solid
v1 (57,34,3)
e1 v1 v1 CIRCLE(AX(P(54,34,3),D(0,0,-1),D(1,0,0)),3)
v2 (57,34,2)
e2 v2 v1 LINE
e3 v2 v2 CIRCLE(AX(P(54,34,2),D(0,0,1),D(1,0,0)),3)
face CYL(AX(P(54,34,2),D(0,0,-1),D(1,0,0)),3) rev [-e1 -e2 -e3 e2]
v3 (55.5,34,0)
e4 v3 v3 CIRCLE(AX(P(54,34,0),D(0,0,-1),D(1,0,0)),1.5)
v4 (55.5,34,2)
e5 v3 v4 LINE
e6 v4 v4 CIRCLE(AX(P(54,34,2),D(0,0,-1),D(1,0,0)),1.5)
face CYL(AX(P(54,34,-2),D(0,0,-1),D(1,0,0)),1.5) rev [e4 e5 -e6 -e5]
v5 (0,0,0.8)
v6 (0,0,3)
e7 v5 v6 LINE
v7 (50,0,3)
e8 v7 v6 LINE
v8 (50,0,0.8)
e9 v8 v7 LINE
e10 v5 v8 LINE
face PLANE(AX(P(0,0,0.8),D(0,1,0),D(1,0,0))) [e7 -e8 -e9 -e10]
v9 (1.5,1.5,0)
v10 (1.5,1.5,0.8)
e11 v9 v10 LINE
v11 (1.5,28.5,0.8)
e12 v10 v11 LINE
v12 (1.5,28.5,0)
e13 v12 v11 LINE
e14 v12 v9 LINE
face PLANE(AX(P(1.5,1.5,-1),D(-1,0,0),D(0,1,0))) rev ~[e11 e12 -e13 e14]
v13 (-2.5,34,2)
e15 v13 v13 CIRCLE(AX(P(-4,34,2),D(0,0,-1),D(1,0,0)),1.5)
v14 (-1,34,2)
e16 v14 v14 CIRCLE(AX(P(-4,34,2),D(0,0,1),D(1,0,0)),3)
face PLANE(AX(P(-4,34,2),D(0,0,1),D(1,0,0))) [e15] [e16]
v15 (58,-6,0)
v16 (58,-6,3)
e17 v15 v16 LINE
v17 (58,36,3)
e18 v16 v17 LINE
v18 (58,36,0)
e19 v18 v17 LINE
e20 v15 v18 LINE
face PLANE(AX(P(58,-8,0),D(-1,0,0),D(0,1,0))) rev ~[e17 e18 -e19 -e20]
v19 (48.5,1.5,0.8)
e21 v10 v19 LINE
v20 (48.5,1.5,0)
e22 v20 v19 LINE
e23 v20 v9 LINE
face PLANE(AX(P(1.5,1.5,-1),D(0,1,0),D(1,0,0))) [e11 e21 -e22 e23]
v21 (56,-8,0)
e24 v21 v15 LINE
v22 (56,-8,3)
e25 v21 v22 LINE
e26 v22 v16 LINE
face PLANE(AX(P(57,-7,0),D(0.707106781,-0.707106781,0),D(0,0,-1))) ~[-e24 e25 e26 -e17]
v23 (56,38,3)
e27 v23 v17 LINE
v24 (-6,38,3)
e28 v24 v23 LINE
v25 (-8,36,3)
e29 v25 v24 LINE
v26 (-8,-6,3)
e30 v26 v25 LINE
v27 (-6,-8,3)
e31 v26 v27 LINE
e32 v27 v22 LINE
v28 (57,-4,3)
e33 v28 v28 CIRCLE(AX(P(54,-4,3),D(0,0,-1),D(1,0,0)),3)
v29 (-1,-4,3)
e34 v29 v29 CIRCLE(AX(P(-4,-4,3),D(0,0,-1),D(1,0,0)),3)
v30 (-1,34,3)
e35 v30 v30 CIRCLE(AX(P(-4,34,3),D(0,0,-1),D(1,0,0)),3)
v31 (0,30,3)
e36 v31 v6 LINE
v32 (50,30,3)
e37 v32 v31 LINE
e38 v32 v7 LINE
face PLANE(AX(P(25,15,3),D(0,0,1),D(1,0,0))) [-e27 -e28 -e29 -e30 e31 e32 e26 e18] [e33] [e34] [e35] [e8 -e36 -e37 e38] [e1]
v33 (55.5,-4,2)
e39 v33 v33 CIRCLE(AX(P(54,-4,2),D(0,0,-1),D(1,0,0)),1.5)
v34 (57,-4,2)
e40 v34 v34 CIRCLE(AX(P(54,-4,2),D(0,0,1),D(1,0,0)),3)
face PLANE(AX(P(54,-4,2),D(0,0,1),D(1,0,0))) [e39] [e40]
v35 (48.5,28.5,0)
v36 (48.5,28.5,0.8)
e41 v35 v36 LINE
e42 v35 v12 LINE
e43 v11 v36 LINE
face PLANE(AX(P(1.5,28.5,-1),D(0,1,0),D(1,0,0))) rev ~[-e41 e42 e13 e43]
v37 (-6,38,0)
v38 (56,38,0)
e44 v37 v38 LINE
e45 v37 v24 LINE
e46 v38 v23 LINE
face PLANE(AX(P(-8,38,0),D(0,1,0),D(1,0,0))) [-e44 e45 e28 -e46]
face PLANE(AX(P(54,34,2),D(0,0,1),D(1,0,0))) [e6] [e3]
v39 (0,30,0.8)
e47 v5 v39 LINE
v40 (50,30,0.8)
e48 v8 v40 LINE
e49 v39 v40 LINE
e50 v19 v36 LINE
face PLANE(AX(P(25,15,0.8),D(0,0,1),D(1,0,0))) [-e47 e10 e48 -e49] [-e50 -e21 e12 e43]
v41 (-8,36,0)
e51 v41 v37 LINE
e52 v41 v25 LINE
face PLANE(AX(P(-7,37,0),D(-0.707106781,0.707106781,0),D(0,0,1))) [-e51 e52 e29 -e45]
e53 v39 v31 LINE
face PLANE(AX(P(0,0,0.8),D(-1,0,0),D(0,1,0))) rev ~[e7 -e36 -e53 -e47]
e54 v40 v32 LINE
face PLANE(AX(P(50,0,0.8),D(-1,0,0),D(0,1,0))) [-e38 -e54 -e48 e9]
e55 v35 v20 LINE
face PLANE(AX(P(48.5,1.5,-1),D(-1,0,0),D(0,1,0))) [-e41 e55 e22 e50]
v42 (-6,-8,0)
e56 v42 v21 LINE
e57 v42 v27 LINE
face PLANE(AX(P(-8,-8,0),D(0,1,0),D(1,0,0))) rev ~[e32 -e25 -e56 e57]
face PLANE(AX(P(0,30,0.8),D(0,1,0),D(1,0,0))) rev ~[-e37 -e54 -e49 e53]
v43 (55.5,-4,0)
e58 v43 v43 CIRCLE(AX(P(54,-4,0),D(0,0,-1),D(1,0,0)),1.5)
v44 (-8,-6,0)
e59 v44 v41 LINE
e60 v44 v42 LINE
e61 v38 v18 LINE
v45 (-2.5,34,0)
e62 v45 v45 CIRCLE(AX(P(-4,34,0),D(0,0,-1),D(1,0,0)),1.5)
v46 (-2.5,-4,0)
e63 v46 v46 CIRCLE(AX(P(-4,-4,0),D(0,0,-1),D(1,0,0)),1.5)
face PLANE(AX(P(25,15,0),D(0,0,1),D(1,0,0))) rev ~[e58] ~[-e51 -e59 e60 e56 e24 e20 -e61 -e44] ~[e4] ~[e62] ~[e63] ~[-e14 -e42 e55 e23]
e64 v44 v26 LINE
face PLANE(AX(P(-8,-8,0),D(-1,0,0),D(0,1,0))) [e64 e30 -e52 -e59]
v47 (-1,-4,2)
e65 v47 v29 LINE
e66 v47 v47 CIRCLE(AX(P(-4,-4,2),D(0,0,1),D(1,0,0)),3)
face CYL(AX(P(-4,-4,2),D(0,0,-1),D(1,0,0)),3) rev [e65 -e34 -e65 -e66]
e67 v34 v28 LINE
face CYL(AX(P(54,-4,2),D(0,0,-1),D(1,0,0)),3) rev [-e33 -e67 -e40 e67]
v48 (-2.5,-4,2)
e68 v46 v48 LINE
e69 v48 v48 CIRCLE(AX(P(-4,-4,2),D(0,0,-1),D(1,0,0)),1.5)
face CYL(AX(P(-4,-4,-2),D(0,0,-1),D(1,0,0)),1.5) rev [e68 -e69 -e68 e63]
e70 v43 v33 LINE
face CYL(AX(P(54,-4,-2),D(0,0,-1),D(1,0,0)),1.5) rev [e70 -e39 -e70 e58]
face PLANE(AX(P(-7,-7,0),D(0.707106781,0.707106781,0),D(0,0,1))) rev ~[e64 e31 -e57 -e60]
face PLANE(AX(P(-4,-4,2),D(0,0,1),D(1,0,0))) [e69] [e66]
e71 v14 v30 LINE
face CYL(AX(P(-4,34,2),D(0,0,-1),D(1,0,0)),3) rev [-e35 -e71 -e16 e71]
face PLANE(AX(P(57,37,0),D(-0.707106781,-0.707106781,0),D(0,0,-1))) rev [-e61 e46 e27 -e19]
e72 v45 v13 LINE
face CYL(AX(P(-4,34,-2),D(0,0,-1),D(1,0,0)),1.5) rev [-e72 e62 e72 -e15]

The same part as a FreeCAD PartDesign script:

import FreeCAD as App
import Part
import Sketcher
Q = App.Units.Quantity


def edges_at(feature, points):
    """Names of the edges that pass closest to the given points."""
    edges = feature.Shape.Edges
    near = lambda p: min(range(len(edges)), key=lambda i: edges[i].distToShape(Part.Vertex(*p))[0])
    return sorted({f"Edge{near(p) + 1}" for p in points})

doc = App.newDocument("Part")
body = doc.addObject("PartDesign::Body", "Body")

sketch1 = doc.addObject("Sketcher::SketchObject", "Sketch")
body.addObject(sketch1)
sketch1.AttachmentSupport = (doc.XY_Plane, [""])
sketch1.MapMode = "FlatFace"
sketch1.AttachmentOffset = App.Placement(App.Vector(0, 0, -2), App.Rotation())
sketch1.addGeometry(Part.Circle(App.Vector(54, -4, 0), App.Vector(0, 0, 1), 3), False)
sketch1.addConstraint([
    Sketcher.Constraint("Diameter", 0, Q("6 mm")),
    Sketcher.Constraint("DistanceX", -1, 1, 0, 3, Q("54 mm")),
    Sketcher.Constraint("DistanceY", 0, 3, -1, 1, Q("4 mm")),
])
pad1 = doc.addObject("PartDesign::Pad", "Pad")
body.addObject(pad1)
pad1.Profile = sketch1
pad1.Length = 3
body2 = doc.addObject("PartDesign::Body", "Body001")

sketch2 = doc.addObject("Sketcher::SketchObject", "Sketch001")
body2.addObject(sketch2)
sketch2.AttachmentSupport = (doc.getObject("XY_Plane001"), [""])
sketch2.MapMode = "FlatFace"
sketch2.AttachmentOffset = App.Placement(App.Vector(0, 0, -2), App.Rotation())
sketch2.addGeometry(Part.Circle(App.Vector(54, 34, 0), App.Vector(0, 0, 1), 3), False)
sketch2.addConstraint([
    Sketcher.Constraint("Diameter", 0, Q("6 mm")),
    Sketcher.Constraint("DistanceX", -1, 1, 0, 3, Q("54 mm")),
    Sketcher.Constraint("DistanceY", -1, 1, 0, 3, Q("34 mm")),
])
pad2 = doc.addObject("PartDesign::Pad", "Pad001")
body2.addObject(pad2)
pad2.Profile = sketch2
pad2.Length = 3
body3 = doc.addObject("PartDesign::Body", "Body002")

sketch3 = doc.addObject("Sketcher::SketchObject", "Sketch002")
body3.addObject(sketch3)
sketch3.AttachmentSupport = (doc.getObject("XY_Plane002"), [""])
sketch3.MapMode = "FlatFace"
sketch3.AttachmentOffset = App.Placement(App.Vector(0, 0, -2), App.Rotation())
sketch3.addGeometry(Part.Circle(App.Vector(-4, -4, 0), App.Vector(0, 0, 1), 3), False)
sketch3.addConstraint([
    Sketcher.Constraint("Diameter", 0, Q("6 mm")),
    Sketcher.Constraint("DistanceX", 0, 3, -1, 1, Q("4 mm")),
    Sketcher.Constraint("DistanceY", 0, 3, -1, 1, Q("4 mm")),
])
pad3 = doc.addObject("PartDesign::Pad", "Pad002")
body3.addObject(pad3)
pad3.Profile = sketch3
pad3.Length = 3
body4 = doc.addObject("PartDesign::Body", "Body003")
body4.AllowCompound = True

sketch4 = doc.addObject("Sketcher::SketchObject", "Sketch003")
body4.addObject(sketch4)
sketch4.AttachmentSupport = (doc.getObject("XY_Plane003"), [""])
sketch4.MapMode = "FlatFace"
sketch4.AttachmentOffset = App.Placement(App.Vector(0, 0, -2), App.Rotation())
sketch4.addGeometry(Part.Circle(App.Vector(-4, 34, 0), App.Vector(0, 0, 1), 3), False)
sketch4.addConstraint([
    Sketcher.Constraint("Diameter", 0, Q("6 mm")),
    Sketcher.Constraint("DistanceX", 0, 3, -1, 1, Q("4 mm")),
    Sketcher.Constraint("DistanceY", -1, 1, 0, 3, Q("34 mm")),
])
pad4 = doc.addObject("PartDesign::Pad", "Pad003")
body4.addObject(pad4)
pad4.Profile = sketch4
pad4.Length = 3
doc.recompute()

boolean = doc.addObject("PartDesign::Boolean", "Boolean")
body4.addObject(boolean)
boolean.Type = "Fuse"
boolean.addObjects([body])
doc.recompute()

boolean2 = doc.addObject("PartDesign::Boolean", "Boolean001")
body4.addObject(boolean2)
boolean2.Type = "Fuse"
boolean2.addObjects([body2])
doc.recompute()

boolean3 = doc.addObject("PartDesign::Boolean", "Boolean002")
body4.addObject(boolean3)
boolean3.Type = "Fuse"
boolean3.addObjects([body3])
body5 = doc.addObject("PartDesign::Body", "Body004")
body5.AllowCompound = True
doc.recompute()

body4.Placement = App.Placement(App.Vector(0, 0, 4), App.Rotation(App.Vector(0, 0, 1), 0))
boolean4 = doc.addObject("PartDesign::Boolean", "Boolean003")
body5.addObject(boolean4)
boolean4.Type = "Fuse"
boolean4.addObjects([body4])
body6 = doc.addObject("PartDesign::Body", "Body005")

sketch5 = doc.addObject("Sketcher::SketchObject", "Sketch004")
body6.addObject(sketch5)
sketch5.AttachmentSupport = (doc.getObject("XY_Plane005"), [""])
sketch5.MapMode = "FlatFace"
sketch5.AttachmentOffset = App.Placement(App.Vector(0, 0, -2), App.Rotation())
sketch5.addGeometry(Part.Circle(App.Vector(54, -4, 0), App.Vector(0, 0, 1), 1.5), False)
sketch5.addConstraint([
    Sketcher.Constraint("Diameter", 0, Q("3 mm")),
    Sketcher.Constraint("DistanceX", -1, 1, 0, 3, Q("54 mm")),
    Sketcher.Constraint("DistanceY", 0, 3, -1, 1, Q("4 mm")),
])
pad5 = doc.addObject("PartDesign::Pad", "Pad004")
body6.addObject(pad5)
pad5.Profile = sketch5
pad5.Length = 10
body7 = doc.addObject("PartDesign::Body", "Body006")

sketch6 = doc.addObject("Sketcher::SketchObject", "Sketch005")
body7.addObject(sketch6)
sketch6.AttachmentSupport = (doc.getObject("XY_Plane006"), [""])
sketch6.MapMode = "FlatFace"
sketch6.AttachmentOffset = App.Placement(App.Vector(0, 0, -2), App.Rotation())
sketch6.addGeometry(Part.Circle(App.Vector(54, 34, 0), App.Vector(0, 0, 1), 1.5), False)
sketch6.addConstraint([
    Sketcher.Constraint("Diameter", 0, Q("3 mm")),
    Sketcher.Constraint("DistanceX", -1, 1, 0, 3, Q("54 mm")),
    Sketcher.Constraint("DistanceY", -1, 1, 0, 3, Q("34 mm")),
])
pad6 = doc.addObject("PartDesign::Pad", "Pad005")
body7.addObject(pad6)
pad6.Profile = sketch6
pad6.Length = 10
body8 = doc.addObject("PartDesign::Body", "Body007")

sketch7 = doc.addObject("Sketcher::SketchObject", "Sketch006")
body8.addObject(sketch7)
sketch7.AttachmentSupport = (doc.getObject("XY_Plane007"), [""])
sketch7.MapMode = "FlatFace"
sketch7.AttachmentOffset = App.Placement(App.Vector(0, 0, -2), App.Rotation())
sketch7.addGeometry(Part.Circle(App.Vector(-4, -4, 0), App.Vector(0, 0, 1), 1.5), False)
sketch7.addConstraint([
    Sketcher.Constraint("Diameter", 0, Q("3 mm")),
    Sketcher.Constraint("DistanceX", 0, 3, -1, 1, Q("4 mm")),
    Sketcher.Constraint("DistanceY", 0, 3, -1, 1, Q("4 mm")),
])
pad7 = doc.addObject("PartDesign::Pad", "Pad006")
body8.addObject(pad7)
pad7.Profile = sketch7
pad7.Length = 10
body9 = doc.addObject("PartDesign::Body", "Body008")
body9.AllowCompound = True

sketch8 = doc.addObject("Sketcher::SketchObject", "Sketch007")
body9.addObject(sketch8)
sketch8.AttachmentSupport = (doc.getObject("XY_Plane008"), [""])
sketch8.MapMode = "FlatFace"
sketch8.AttachmentOffset = App.Placement(App.Vector(0, 0, -2), App.Rotation())
sketch8.addGeometry(Part.Circle(App.Vector(-4, 34, 0), App.Vector(0, 0, 1), 1.5), False)
sketch8.addConstraint([
    Sketcher.Constraint("Diameter", 0, Q("3 mm")),
    Sketcher.Constraint("DistanceX", 0, 3, -1, 1, Q("4 mm")),
    Sketcher.Constraint("DistanceY", -1, 1, 0, 3, Q("34 mm")),
])
pad8 = doc.addObject("PartDesign::Pad", "Pad007")
body9.addObject(pad8)
pad8.Profile = sketch8
pad8.Length = 10
doc.recompute()

boolean5 = doc.addObject("PartDesign::Boolean", "Boolean004")
body9.addObject(boolean5)
boolean5.Type = "Fuse"
boolean5.addObjects([body6])
doc.recompute()

boolean6 = doc.addObject("PartDesign::Boolean", "Boolean005")
body9.addObject(boolean6)
boolean6.Type = "Fuse"
boolean6.addObjects([body7])
doc.recompute()

boolean7 = doc.addObject("PartDesign::Boolean", "Boolean006")
body9.addObject(boolean7)
boolean7.Type = "Fuse"
boolean7.addObjects([body8])
body10 = doc.addObject("PartDesign::Body", "Body009")

sketch9 = doc.addObject("Sketcher::SketchObject", "Sketch008")
body10.addObject(sketch9)
sketch9.AttachmentSupport = (doc.getObject("XY_Plane009"), [""])
sketch9.MapMode = "FlatFace"
sketch9.AttachmentOffset = App.Placement(App.Vector(0, 0, 0.8), App.Rotation())
sketch9.addGeometry([
    Part.LineSegment(App.Vector(0, 30, 0), App.Vector(0, 0, 0)),
    Part.LineSegment(App.Vector(0, 0, 0), App.Vector(50, 0, 0)),
    Part.LineSegment(App.Vector(50, 0, 0), App.Vector(50, 30, 0)),
    Part.LineSegment(App.Vector(50, 30, 0), App.Vector(0, 30, 0)),
], False)
sketch9.addConstraint([
    Sketcher.Constraint("Coincident", 0, 2, 1, 1),
    Sketcher.Constraint("Coincident", 1, 2, 2, 1),
    Sketcher.Constraint("Coincident", 2, 2, 3, 1),
    Sketcher.Constraint("Coincident", 3, 2, 0, 1),
    Sketcher.Constraint("Vertical", 0),
    Sketcher.Constraint("Horizontal", 1),
    Sketcher.Constraint("Vertical", 2),
    Sketcher.Constraint("Horizontal", 3),
    Sketcher.Constraint("Coincident", 0, 2, -1, 1),
    Sketcher.Constraint("DistanceX", 1, 1, 1, 2, Q("50 mm")),
    Sketcher.Constraint("DistanceY", 0, 2, 0, 1, Q("30 mm")),
])
pad9 = doc.addObject("PartDesign::Pad", "Pad008")
body10.addObject(pad9)
pad9.Profile = sketch9
pad9.Length = 3
body11 = doc.addObject("PartDesign::Body", "Body010")

sketch10 = doc.addObject("Sketcher::SketchObject", "Sketch009")
body11.addObject(sketch10)
sketch10.AttachmentSupport = (doc.getObject("XY_Plane010"), [""])
sketch10.MapMode = "FlatFace"
sketch10.AttachmentOffset = App.Placement(App.Vector(0, 0, -1), App.Rotation())
sketch10.addGeometry([
    Part.LineSegment(App.Vector(1.5, 28.5, 0), App.Vector(1.5, 1.5, 0)),
    Part.LineSegment(App.Vector(1.5, 1.5, 0), App.Vector(48.5, 1.5, 0)),
    Part.LineSegment(App.Vector(48.5, 1.5, 0), App.Vector(48.5, 28.5, 0)),
    Part.LineSegment(App.Vector(48.5, 28.5, 0), App.Vector(1.5, 28.5, 0)),
], False)
sketch10.addConstraint([
    Sketcher.Constraint("Coincident", 0, 2, 1, 1),
    Sketcher.Constraint("Coincident", 1, 2, 2, 1),
    Sketcher.Constraint("Coincident", 2, 2, 3, 1),
    Sketcher.Constraint("Coincident", 3, 2, 0, 1),
    Sketcher.Constraint("Vertical", 0),
    Sketcher.Constraint("Horizontal", 1),
    Sketcher.Constraint("Vertical", 2),
    Sketcher.Constraint("Horizontal", 3),
    Sketcher.Constraint("DistanceX", 1, 1, 1, 2, Q("47 mm")),
    Sketcher.Constraint("DistanceY", 0, 2, 0, 1, Q("27 mm")),
    Sketcher.Constraint("DistanceX", -1, 1, 0, 2, Q("1.5 mm")),
    Sketcher.Constraint("DistanceY", -1, 1, 0, 2, Q("1.5 mm")),
])
pad10 = doc.addObject("PartDesign::Pad", "Pad009")
body11.addObject(pad10)
pad10.Profile = sketch10
pad10.Length = 6
body12 = doc.addObject("PartDesign::Body", "Body011")

sketch11 = doc.addObject("Sketcher::SketchObject", "Sketch010")
body12.addObject(sketch11)
sketch11.AttachmentSupport = (doc.getObject("XY_Plane011"), [""])
sketch11.MapMode = "FlatFace"
sketch11.addGeometry([
    Part.LineSegment(App.Vector(-8, 38, 0), App.Vector(-8, -8, 0)),
    Part.LineSegment(App.Vector(-8, -8, 0), App.Vector(58, -8, 0)),
    Part.LineSegment(App.Vector(58, -8, 0), App.Vector(58, 38, 0)),
    Part.LineSegment(App.Vector(58, 38, 0), App.Vector(-8, 38, 0)),
], False)
sketch11.addConstraint([
    Sketcher.Constraint("Coincident", 0, 2, 1, 1),
    Sketcher.Constraint("Coincident", 1, 2, 2, 1),
    Sketcher.Constraint("Coincident", 2, 2, 3, 1),
    Sketcher.Constraint("Coincident", 3, 2, 0, 1),
    Sketcher.Constraint("Vertical", 0),
    Sketcher.Constraint("Horizontal", 1),
    Sketcher.Constraint("Vertical", 2),
    Sketcher.Constraint("Horizontal", 3),
    Sketcher.Constraint("DistanceX", 1, 1, 1, 2, Q("66 mm")),
    Sketcher.Constraint("DistanceY", 0, 2, 0, 1, Q("46 mm")),
    Sketcher.Constraint("DistanceX", 0, 2, -1, 1, Q("8 mm")),
    Sketcher.Constraint("DistanceY", 0, 2, -1, 1, Q("8 mm")),
])
pad11 = doc.addObject("PartDesign::Pad", "Pad010")
body12.addObject(pad11)
pad11.Profile = sketch11
pad11.Length = 3
doc.recompute()

boolean8 = doc.addObject("PartDesign::Boolean", "Boolean007")
body12.addObject(boolean8)
boolean8.Type = "Cut"
boolean8.addObjects([body11])
doc.recompute()

boolean9 = doc.addObject("PartDesign::Boolean", "Boolean008")
body12.addObject(boolean9)
boolean9.Type = "Cut"
boolean9.addObjects([body10])
doc.recompute()

boolean10 = doc.addObject("PartDesign::Boolean", "Boolean009")
body12.addObject(boolean10)
boolean10.Type = "Cut"
boolean10.addObjects([body9])
doc.recompute()

boolean11 = doc.addObject("PartDesign::Boolean", "Boolean010")
body12.addObject(boolean11)
boolean11.Type = "Cut"
boolean11.addObjects([body5])
doc.recompute()

chamfer = doc.addObject("PartDesign::Chamfer", "Chamfer")
body12.addObject(chamfer)
chamfer.Base = (boolean11, edges_at(boolean11, [(-8, -8, 1.5), (58, -8, 1.5)]))
chamfer.Size = 2
doc.recompute()

chamfer2 = doc.addObject("PartDesign::Chamfer", "Chamfer001")
body12.addObject(chamfer2)
chamfer2.Base = (chamfer, edges_at(chamfer, [(-8, 38, 1.5), (58, 38, 1.5)]))
chamfer2.Size = 2

doc.recompute()
